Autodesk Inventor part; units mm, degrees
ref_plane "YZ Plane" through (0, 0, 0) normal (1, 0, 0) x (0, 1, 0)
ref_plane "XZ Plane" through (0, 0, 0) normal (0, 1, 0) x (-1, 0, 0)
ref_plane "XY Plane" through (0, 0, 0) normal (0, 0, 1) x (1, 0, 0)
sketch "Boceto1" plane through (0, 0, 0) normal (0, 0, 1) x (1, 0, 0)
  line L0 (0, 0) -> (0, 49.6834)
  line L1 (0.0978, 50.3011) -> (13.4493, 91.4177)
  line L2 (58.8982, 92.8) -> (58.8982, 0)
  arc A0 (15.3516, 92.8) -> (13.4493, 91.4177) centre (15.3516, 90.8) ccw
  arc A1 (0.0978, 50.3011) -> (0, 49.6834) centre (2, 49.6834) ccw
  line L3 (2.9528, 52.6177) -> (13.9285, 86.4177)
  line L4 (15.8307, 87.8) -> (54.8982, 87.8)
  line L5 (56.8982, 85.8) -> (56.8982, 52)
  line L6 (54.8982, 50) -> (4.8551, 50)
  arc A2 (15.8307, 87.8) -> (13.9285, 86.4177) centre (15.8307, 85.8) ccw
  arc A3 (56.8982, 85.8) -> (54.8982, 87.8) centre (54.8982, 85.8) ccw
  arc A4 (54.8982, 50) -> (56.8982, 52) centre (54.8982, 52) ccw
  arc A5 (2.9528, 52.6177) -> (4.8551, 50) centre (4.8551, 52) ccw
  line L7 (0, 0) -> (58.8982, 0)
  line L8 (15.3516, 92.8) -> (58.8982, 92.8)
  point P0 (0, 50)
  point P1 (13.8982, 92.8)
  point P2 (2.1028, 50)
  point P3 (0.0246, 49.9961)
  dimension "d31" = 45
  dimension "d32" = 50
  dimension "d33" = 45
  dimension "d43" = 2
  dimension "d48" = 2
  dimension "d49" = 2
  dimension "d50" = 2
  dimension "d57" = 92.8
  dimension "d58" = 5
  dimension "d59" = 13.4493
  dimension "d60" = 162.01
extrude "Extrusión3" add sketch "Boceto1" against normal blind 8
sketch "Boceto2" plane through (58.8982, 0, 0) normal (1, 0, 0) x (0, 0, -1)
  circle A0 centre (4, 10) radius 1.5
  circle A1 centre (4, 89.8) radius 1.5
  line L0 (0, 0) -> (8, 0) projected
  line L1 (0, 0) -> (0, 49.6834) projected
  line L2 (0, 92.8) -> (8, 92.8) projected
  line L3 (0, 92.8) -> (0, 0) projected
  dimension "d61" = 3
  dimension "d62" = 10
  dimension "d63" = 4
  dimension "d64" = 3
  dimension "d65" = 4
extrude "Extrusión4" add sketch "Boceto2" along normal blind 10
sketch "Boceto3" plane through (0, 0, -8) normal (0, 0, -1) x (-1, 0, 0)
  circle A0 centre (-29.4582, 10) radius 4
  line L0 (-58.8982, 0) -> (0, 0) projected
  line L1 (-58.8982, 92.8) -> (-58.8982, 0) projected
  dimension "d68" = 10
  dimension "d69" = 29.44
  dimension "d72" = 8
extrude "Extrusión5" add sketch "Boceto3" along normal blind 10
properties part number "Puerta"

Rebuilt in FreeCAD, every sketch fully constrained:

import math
import FreeCAD as App
import Part
import Sketcher

V = App.Vector
Q = App.Units.Quantity

doc = App.newDocument("Part")
body = doc.addObject("PartDesign::Body", "Body")

# Sketch on XY plane
sketch1 = body.newObject("Sketcher::SketchObject", "Sketch")
sketch1.AttachmentSupport = (doc.getObject("XY_Plane"), [""])
sketch1.MapMode = "FlatFace"
sketch1.addGeometry([
    Part.LineSegment(V(0, 49.7, 0), V(0, 0, 0)),  # 0
    Part.LineSegment(V(0, 0, 0), V(58.9, 0, 0)),  # 1
    Part.LineSegment(V(58.9, 0, 0), V(58.9, 92.8, 0)),  # 2
    Part.LineSegment(V(58.9, 92.8, 0), V(15.4, 92.8, 0)),  # 3
    Part.ArcOfCircle(Part.Circle(V(15.4, 90.8, 0), V(0, 0, 1), 2), math.radians(90), math.radians(162)),  # 4
    Part.LineSegment(V(13.4, 91.4, 0), V(0.1, 50.3, 0)),  # 5
    Part.ArcOfCircle(Part.Circle(V(2, 49.7, 0), V(0, 0, 1), 2), math.radians(162.01), math.radians(180)),  # 6
    Part.ArcOfCircle(Part.Circle(V(4.9, 52, 0), V(0, 0, 1), 2), math.radians(162), math.radians(270)),  # 7
    Part.LineSegment(V(3, 52.6, 0), V(13.9, 86.4, 0)),  # 8
    Part.ArcOfCircle(Part.Circle(V(15.8, 85.8, 0), V(0, 0, 1), 2), math.radians(90), math.radians(162)),  # 9
    Part.LineSegment(V(15.8, 87.8, 0), V(54.9, 87.8, 0)),  # 10
    Part.ArcOfCircle(Part.Circle(V(54.9, 85.8, 0), V(0, 0, 1), 2), math.radians(0), math.radians(90)),  # 11
    Part.LineSegment(V(56.9, 85.8, 0), V(56.9, 52, 0)),  # 12
    Part.ArcOfCircle(Part.Circle(V(54.9, 52, 0), V(0, 0, 1), 2), math.radians(-90), math.radians(0)),  # 13
    Part.LineSegment(V(54.9, 50, 0), V(4.9, 50, 0)),  # 14
], False)
sketch1.addConstraint([
    Sketcher.Constraint("Coincident", 0, 2, 1, 1),
    Sketcher.Constraint("Coincident", 1, 2, 2, 1),
    Sketcher.Constraint("Coincident", 2, 2, 3, 1),
    Sketcher.Constraint("Tangent", 3, 2, 4, 1),
    Sketcher.Constraint("Tangent", 4, 2, 5, 1),
    Sketcher.Constraint("Tangent", 5, 2, 6, 1),
    Sketcher.Constraint("Tangent", 6, 2, 0, 1),
    Sketcher.Constraint("Tangent", 7, 1, 8, 1),
    Sketcher.Constraint("Tangent", 8, 2, 9, 2),
    Sketcher.Constraint("Tangent", 9, 1, 10, 1),
    Sketcher.Constraint("Tangent", 10, 2, 11, 2),
    Sketcher.Constraint("Tangent", 11, 1, 12, 1),
    Sketcher.Constraint("Tangent", 12, 2, 13, 2),
    Sketcher.Constraint("Tangent", 13, 1, 14, 1),
    Sketcher.Constraint("Tangent", 14, 2, 7, 2),
    Sketcher.Constraint("Vertical", 0),
    Sketcher.Constraint("Horizontal", 1),
    Sketcher.Constraint("Vertical", 2),
    Sketcher.Constraint("Horizontal", 3),
    Sketcher.Constraint("Horizontal", 10),
    Sketcher.Constraint("Vertical", 12),
    Sketcher.Constraint("Horizontal", 14),
    Sketcher.Constraint("Coincident", 0, 2, -1, 1),
    Sketcher.Constraint("Equal", 4, 6),
    Sketcher.Constraint("Equal", 6, 7),
    Sketcher.Constraint("Equal", 7, 9),
    Sketcher.Constraint("Equal", 9, 11),
    Sketcher.Constraint("Equal", 11, 13),
    Sketcher.Constraint("Parallel", 5, 8),
    Sketcher.Constraint("Radius", 4, Q("2 mm")),
    Sketcher.Constraint("DistanceY", 2, 1, 2, 2, Q("92.8 mm")),
    Sketcher.Constraint("DistanceY", -1, 1, 13, 1, Q("50 mm")),
    Sketcher.Constraint("DistanceY", 9, 3, 4, 3, Q("5 mm")),
    Sketcher.Constraint("DistanceX", 11, 1, 2, 2, Q("2 mm")),
    Sketcher.Constraint("DistanceX", -1, 1, 4, 2, Q("13.4494 mm")),
    Sketcher.Constraint("Angle", 5, Q("-107.9898 deg")),
    Sketcher.Constraint("DistanceX", 14, 2, 14, 1, Q("50.043 mm")),
    Sketcher.Constraint("DistanceX", 1, 1, 1, 2, Q("58.8982 mm")),
])
pad1 = body.newObject("PartDesign::Pad", "Pad")
pad1.Profile = sketch1
pad1.Length = 8
pad1.Reversed = True

# Sketch on YZ plane
sketch2 = body.newObject("Sketcher::SketchObject", "Sketch001")
sketch2.AttachmentSupport = (doc.getObject("YZ_Plane"), [""])
sketch2.MapMode = "FlatFace"
sketch2.AttachmentOffset = App.Placement(V(0, 0, 58.8982), App.Rotation())
sketch2.addGeometry([
    Part.Circle(V(10, -4, 0), V(0, 0, 1), 1.5),
    Part.Circle(V(89.8, -4, 0), V(0, 0, 1), 1.5),
], False)
sketch2.addConstraint([
    Sketcher.Constraint("Equal", 0, 1),
    Sketcher.Constraint("Horizontal", 0, 3, 1, 3),
    Sketcher.Constraint("Diameter", 0, Q("3 mm")),
    Sketcher.Constraint("DistanceX", -1, 1, 0, 3, Q("10 mm")),
    Sketcher.Constraint("DistanceY", 0, 3, -1, 1, Q("4 mm")),
    Sketcher.Constraint("DistanceX", -1, 1, 1, 3, Q("89.8 mm")),
])
pad2 = body.newObject("PartDesign::Pad", "Pad001")
pad2.Profile = sketch2
pad2.Length = 10

# Sketch on XY plane
sketch3 = body.newObject("Sketcher::SketchObject", "Sketch002")
sketch3.AttachmentSupport = (doc.getObject("XY_Plane"), [""])
sketch3.MapMode = "FlatFace"
sketch3.AttachmentOffset = App.Placement(V(0, 0, -8), App.Rotation())
sketch3.addGeometry(Part.Circle(V(29.5, 10, 0), V(0, 0, 1), 4), False)
sketch3.addConstraint([
    Sketcher.Constraint("Diameter", 0, Q("8 mm")),
    Sketcher.Constraint("DistanceY", -1, 1, 0, 3, Q("10 mm")),
    Sketcher.Constraint("DistanceX", -1, 1, 0, 3, Q("29.4582 mm")),
])
pad3 = body.newObject("PartDesign::Pad", "Pad002")
pad3.Profile = sketch3
pad3.Length = 10
pad3.Reversed = True

doc.recompute()
